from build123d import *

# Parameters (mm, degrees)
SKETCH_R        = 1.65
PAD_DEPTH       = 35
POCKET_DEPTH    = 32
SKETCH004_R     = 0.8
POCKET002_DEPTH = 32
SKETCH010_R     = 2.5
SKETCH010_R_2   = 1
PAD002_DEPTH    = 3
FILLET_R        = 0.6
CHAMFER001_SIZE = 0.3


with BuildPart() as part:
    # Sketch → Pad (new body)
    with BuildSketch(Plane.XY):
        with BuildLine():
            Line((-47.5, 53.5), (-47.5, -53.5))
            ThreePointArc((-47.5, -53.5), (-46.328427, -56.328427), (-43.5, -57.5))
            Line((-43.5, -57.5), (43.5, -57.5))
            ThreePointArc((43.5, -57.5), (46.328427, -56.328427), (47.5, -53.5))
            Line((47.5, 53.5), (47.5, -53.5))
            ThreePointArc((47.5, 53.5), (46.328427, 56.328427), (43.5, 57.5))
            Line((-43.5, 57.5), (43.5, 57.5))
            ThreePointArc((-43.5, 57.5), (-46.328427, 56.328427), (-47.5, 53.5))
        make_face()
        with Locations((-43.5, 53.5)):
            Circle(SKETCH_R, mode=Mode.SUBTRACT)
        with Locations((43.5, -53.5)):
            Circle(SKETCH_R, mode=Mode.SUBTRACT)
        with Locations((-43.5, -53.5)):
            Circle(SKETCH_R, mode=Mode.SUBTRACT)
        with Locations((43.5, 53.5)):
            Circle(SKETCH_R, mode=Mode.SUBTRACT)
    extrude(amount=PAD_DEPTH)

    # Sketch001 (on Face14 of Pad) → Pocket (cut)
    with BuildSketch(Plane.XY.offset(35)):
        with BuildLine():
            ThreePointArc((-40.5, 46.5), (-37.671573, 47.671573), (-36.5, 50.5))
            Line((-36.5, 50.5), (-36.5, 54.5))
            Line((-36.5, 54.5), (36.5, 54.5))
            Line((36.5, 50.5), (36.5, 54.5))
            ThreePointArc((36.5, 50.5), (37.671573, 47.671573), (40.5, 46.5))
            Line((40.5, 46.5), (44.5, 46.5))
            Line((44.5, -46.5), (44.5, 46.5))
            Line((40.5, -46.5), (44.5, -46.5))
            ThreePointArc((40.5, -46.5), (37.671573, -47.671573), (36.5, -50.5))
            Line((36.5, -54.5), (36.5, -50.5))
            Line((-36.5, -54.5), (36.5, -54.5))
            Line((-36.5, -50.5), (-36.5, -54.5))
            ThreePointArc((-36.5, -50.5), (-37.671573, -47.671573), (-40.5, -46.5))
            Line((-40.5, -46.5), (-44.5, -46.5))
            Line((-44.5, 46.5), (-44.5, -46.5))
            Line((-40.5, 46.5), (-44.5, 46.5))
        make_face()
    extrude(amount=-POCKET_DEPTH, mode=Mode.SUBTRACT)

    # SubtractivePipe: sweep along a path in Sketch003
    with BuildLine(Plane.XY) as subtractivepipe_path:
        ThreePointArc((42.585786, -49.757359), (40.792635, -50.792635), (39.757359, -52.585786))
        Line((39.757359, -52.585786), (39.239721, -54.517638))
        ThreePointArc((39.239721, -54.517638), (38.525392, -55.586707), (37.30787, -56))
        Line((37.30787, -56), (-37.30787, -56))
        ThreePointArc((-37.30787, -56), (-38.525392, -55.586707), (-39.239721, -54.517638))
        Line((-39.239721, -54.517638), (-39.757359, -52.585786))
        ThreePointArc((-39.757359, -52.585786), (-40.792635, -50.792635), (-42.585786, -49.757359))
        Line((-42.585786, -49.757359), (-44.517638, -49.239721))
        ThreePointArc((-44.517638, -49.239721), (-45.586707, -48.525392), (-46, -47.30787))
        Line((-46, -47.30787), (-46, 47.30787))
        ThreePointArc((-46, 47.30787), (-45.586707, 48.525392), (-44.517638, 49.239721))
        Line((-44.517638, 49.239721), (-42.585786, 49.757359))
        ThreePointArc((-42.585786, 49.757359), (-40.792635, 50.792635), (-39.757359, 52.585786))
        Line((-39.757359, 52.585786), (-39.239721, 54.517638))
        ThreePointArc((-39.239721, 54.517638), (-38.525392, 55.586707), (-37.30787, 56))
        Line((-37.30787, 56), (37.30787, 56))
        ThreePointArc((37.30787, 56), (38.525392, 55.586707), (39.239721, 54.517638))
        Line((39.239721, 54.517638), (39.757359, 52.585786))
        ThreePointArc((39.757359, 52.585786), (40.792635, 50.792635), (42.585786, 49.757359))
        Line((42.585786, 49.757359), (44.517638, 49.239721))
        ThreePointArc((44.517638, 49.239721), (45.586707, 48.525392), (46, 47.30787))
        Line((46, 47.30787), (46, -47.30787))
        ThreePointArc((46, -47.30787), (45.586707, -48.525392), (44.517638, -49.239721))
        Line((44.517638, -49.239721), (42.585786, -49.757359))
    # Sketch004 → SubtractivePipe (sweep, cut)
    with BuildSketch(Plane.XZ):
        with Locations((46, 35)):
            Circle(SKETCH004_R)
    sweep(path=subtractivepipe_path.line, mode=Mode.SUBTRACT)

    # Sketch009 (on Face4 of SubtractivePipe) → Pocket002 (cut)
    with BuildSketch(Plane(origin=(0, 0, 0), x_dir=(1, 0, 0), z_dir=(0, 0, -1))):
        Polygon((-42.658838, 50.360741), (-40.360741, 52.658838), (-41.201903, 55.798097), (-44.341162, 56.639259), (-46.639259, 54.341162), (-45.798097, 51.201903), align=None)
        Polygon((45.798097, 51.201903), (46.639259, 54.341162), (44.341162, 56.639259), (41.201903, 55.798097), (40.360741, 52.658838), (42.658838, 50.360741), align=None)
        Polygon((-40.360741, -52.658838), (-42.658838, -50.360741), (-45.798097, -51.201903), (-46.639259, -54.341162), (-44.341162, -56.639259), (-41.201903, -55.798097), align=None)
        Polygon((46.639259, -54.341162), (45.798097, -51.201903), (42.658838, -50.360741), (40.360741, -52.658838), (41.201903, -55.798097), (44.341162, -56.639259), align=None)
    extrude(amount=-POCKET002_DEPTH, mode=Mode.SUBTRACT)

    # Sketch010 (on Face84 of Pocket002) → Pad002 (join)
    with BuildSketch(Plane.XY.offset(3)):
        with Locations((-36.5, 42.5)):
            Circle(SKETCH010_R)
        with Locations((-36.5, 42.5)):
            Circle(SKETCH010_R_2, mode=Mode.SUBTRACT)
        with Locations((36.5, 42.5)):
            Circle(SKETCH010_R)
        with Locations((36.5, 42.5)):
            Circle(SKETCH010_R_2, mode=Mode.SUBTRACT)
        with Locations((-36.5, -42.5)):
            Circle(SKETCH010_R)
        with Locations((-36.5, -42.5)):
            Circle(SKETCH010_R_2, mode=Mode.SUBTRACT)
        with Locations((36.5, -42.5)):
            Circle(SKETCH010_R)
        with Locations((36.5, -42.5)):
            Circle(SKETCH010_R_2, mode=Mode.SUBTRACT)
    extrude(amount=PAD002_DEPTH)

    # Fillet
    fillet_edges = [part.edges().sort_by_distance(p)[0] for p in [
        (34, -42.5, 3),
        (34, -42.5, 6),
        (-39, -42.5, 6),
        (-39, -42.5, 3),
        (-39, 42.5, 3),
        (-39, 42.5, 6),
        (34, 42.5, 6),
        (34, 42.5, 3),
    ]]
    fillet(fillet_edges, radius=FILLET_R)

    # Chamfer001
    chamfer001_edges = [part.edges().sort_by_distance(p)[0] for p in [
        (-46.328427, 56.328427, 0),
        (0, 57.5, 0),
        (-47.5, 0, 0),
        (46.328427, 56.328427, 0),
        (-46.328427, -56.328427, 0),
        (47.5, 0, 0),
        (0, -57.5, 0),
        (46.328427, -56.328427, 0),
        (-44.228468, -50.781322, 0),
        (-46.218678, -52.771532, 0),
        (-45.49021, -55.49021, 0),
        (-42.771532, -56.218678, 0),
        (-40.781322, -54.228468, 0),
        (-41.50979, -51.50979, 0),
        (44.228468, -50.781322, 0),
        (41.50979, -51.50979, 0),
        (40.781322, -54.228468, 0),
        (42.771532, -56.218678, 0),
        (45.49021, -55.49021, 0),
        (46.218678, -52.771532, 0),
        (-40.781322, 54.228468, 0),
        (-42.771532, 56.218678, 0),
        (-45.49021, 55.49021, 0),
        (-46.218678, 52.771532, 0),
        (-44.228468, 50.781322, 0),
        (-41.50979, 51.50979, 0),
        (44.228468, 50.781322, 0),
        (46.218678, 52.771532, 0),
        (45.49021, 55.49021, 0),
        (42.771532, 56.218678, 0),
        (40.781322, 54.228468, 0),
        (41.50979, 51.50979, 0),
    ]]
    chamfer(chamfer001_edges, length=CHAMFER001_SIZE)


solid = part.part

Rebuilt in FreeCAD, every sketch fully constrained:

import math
import FreeCAD as App
import Part
import Sketcher

V = App.Vector
Q = App.Units.Quantity


def edges_at(feature, points):
    """Names of the edges that pass closest to the given points."""
    edges = feature.Shape.Edges
    near = lambda p: min(range(len(edges)), key=lambda i: edges[i].distToShape(Part.Vertex(*p))[0])
    return sorted({f"Edge{near(p) + 1}" for p in points})

doc = App.newDocument("Part")
body = doc.addObject("PartDesign::Body", "Body")

# Sketch on XY plane
sketch1 = body.newObject("Sketcher::SketchObject", "Sketch")
sketch1.AttachmentSupport = (doc.getObject("XY_Plane"), [""])
sketch1.MapMode = "FlatFace"
sketch1.addGeometry(Part.LineSegment(V(-47.5, 53.5, 0), V(-47.5, -53.5, 0)), False)
sketch1.addGeometry(Part.ArcOfCircle(Part.Circle(V(-43.5, -53.5, 0), V(0, 0, 1), 4), math.radians(-180), math.radians(-90)), False)
sketch1.addGeometry(Part.LineSegment(V(-43.5, -57.5, 0), V(43.5, -57.5, 0)), False)
sketch1.addGeometry(Part.ArcOfCircle(Part.Circle(V(43.5, -53.5, 0), V(0, 0, 1), 4), math.radians(-90), math.radians(0)), False)
sketch1.addGeometry(Part.LineSegment(V(47.5, -53.5, 0), V(47.5, 53.5, 0)), False)
sketch1.addGeometry(Part.ArcOfCircle(Part.Circle(V(43.5, 53.5, 0), V(0, 0, 1), 4), math.radians(0), math.radians(90)), False)
sketch1.addGeometry(Part.LineSegment(V(43.5, 57.5, 0), V(-43.5, 57.5, 0)), False)
sketch1.addGeometry(Part.ArcOfCircle(Part.Circle(V(-43.5, 53.5, 0), V(0, 0, 1), 4), math.radians(90), math.radians(180)), False)
sketch1.addGeometry(Part.Circle(V(-43.5, -53.5, 0), V(0, 0, 1), 1.6), False)
sketch1.addGeometry(Part.Circle(V(43.5, -53.5, 0), V(0, 0, 1), 1.6), False)
sketch1.addGeometry(Part.Circle(V(-43.5, 53.5, 0), V(0, 0, 1), 1.6), False)
sketch1.addGeometry(Part.Circle(V(43.5, 53.5, 0), V(0, 0, 1), 1.6), False)
sketch1.addConstraint(Sketcher.Constraint("Tangent", 0, 2, 1, 1))
sketch1.addConstraint(Sketcher.Constraint("Tangent", 1, 2, 2, 1))
sketch1.addConstraint(Sketcher.Constraint("Tangent", 2, 2, 3, 1))
sketch1.addConstraint(Sketcher.Constraint("Tangent", 3, 2, 4, 1))
sketch1.addConstraint(Sketcher.Constraint("Tangent", 4, 2, 5, 1))
sketch1.addConstraint(Sketcher.Constraint("Tangent", 5, 2, 6, 1))
sketch1.addConstraint(Sketcher.Constraint("Tangent", 6, 2, 7, 1))
sketch1.addConstraint(Sketcher.Constraint("Tangent", 7, 2, 0, 1))
sketch1.addConstraint(Sketcher.Constraint("Vertical", 0))
sketch1.addConstraint(Sketcher.Constraint("Horizontal", 2))
sketch1.addConstraint(Sketcher.Constraint("Vertical", 4))
sketch1.addConstraint(Sketcher.Constraint("Horizontal", 6))
sketch1.addConstraint(Sketcher.Constraint("Coincident", 8, 3, 1, 3))
sketch1.addConstraint(Sketcher.Constraint("Coincident", 9, 3, 3, 3))
sketch1.addConstraint(Sketcher.Constraint("Coincident", 10, 3, 7, 3))
sketch1.addConstraint(Sketcher.Constraint("Coincident", 11, 3, 5, 3))
sketch1.addConstraint(Sketcher.Constraint("Equal", 1, 3))
sketch1.addConstraint(Sketcher.Constraint("Equal", 3, 5))
sketch1.addConstraint(Sketcher.Constraint("Equal", 5, 7))
sketch1.addConstraint(Sketcher.Constraint("Equal", 8, 9))
sketch1.addConstraint(Sketcher.Constraint("Equal", 9, 10))
sketch1.addConstraint(Sketcher.Constraint("Equal", 10, 11))
sketch1.addConstraint(Sketcher.Constraint("Symmetric", 1, 3, 5, 3, -1, 1))
sketch1.addConstraint(Sketcher.Constraint("Radius", 1, Q("4 mm")))
sketch1.addConstraint(Sketcher.Constraint("Diameter", 8, Q("3.3 mm")))
sketch1.addConstraint(Sketcher.Constraint("DistanceX", 2, 1, 2, 2, Q("87 mm")))
sketch1.addConstraint(Sketcher.Constraint("DistanceY", 0, 2, 0, 1, Q("107 mm")))
pad1 = body.newObject("PartDesign::Pad", "Pad")
pad1.Profile = sketch1
pad1.Length = 35

# Sketch on XY plane
sketch2 = body.newObject("Sketcher::SketchObject", "Sketch001")
sketch2.AttachmentSupport = (doc.getObject("XY_Plane"), [""])
sketch2.MapMode = "FlatFace"
sketch2.AttachmentOffset = App.Placement(V(0, 0, 35), App.Rotation())
sketch2.addGeometry(Part.ArcOfCircle(Part.Circle(V(-40.5, 50.5, 0), V(0, 0, 1), 4), math.radians(-90), math.radians(0)), False)
sketch2.addGeometry(Part.LineSegment(V(-40.5, 46.5, 0), V(-44.5, 46.5, 0)), False)
sketch2.addGeometry(Part.LineSegment(V(-44.5, 46.5, 0), V(-44.5, -46.5, 0)), False)
sketch2.addGeometry(Part.LineSegment(V(-44.5, -46.5, 0), V(-40.5, -46.5, 0)), False)
sketch2.addGeometry(Part.ArcOfCircle(Part.Circle(V(-40.5, -50.5, 0), V(0, 0, 1), 4), math.radians(0), math.radians(90)), False)
sketch2.addGeometry(Part.LineSegment(V(-36.5, -50.5, 0), V(-36.5, -54.5, 0)), False)
sketch2.addGeometry(Part.LineSegment(V(-36.5, -54.5, 0), V(36.5, -54.5, 0)), False)
sketch2.addGeometry(Part.LineSegment(V(36.5, -54.5, 0), V(36.5, -50.5, 0)), False)
sketch2.addGeometry(Part.ArcOfCircle(Part.Circle(V(40.5, -50.5, 0), V(0, 0, 1), 4), math.radians(90), math.radians(180)), False)
sketch2.addGeometry(Part.LineSegment(V(40.5, -46.5, 0), V(44.5, -46.5, 0)), False)
sketch2.addGeometry(Part.LineSegment(V(44.5, -46.5, 0), V(44.5, 46.5, 0)), False)
sketch2.addGeometry(Part.LineSegment(V(44.5, 46.5, 0), V(40.5, 46.5, 0)), False)
sketch2.addGeometry(Part.ArcOfCircle(Part.Circle(V(40.5, 50.5, 0), V(0, 0, 1), 4), math.radians(-180), math.radians(-90)), False)
sketch2.addGeometry(Part.LineSegment(V(36.5, 50.5, 0), V(36.5, 54.5, 0)), False)
sketch2.addGeometry(Part.LineSegment(V(36.5, 54.5, 0), V(-36.5, 54.5, 0)), False)
sketch2.addGeometry(Part.LineSegment(V(-36.5, 54.5, 0), V(-36.5, 50.5, 0)), False)
sketch2.addConstraint(Sketcher.Constraint("Tangent", 0, 1, 1, 1))
sketch2.addConstraint(Sketcher.Constraint("Coincident", 1, 2, 2, 1))
sketch2.addConstraint(Sketcher.Constraint("Coincident", 2, 2, 3, 1))
sketch2.addConstraint(Sketcher.Constraint("Tangent", 3, 2, 4, 2))
sketch2.addConstraint(Sketcher.Constraint("Tangent", 4, 1, 5, 1))
sketch2.addConstraint(Sketcher.Constraint("Coincident", 5, 2, 6, 1))
sketch2.addConstraint(Sketcher.Constraint("Coincident", 6, 2, 7, 1))
sketch2.addConstraint(Sketcher.Constraint("Tangent", 7, 2, 8, 2))
sketch2.addConstraint(Sketcher.Constraint("Tangent", 8, 1, 9, 1))
sketch2.addConstraint(Sketcher.Constraint("Coincident", 9, 2, 10, 1))
sketch2.addConstraint(Sketcher.Constraint("Coincident", 10, 2, 11, 1))
sketch2.addConstraint(Sketcher.Constraint("Tangent", 11, 2, 12, 2))
sketch2.addConstraint(Sketcher.Constraint("Tangent", 12, 1, 13, 1))
sketch2.addConstraint(Sketcher.Constraint("Coincident", 13, 2, 14, 1))
sketch2.addConstraint(Sketcher.Constraint("Coincident", 14, 2, 15, 1))
sketch2.addConstraint(Sketcher.Constraint("Tangent", 15, 2, 0, 2))
sketch2.addConstraint(Sketcher.Constraint("Horizontal", 1))
sketch2.addConstraint(Sketcher.Constraint("Vertical", 2))
sketch2.addConstraint(Sketcher.Constraint("Horizontal", 3))
sketch2.addConstraint(Sketcher.Constraint("Vertical", 5))
sketch2.addConstraint(Sketcher.Constraint("Horizontal", 6))
sketch2.addConstraint(Sketcher.Constraint("Vertical", 7))
sketch2.addConstraint(Sketcher.Constraint("Horizontal", 9))
sketch2.addConstraint(Sketcher.Constraint("Vertical", 10))
sketch2.addConstraint(Sketcher.Constraint("Horizontal", 11))
sketch2.addConstraint(Sketcher.Constraint("Vertical", 13))
sketch2.addConstraint(Sketcher.Constraint("Horizontal", 14))
sketch2.addConstraint(Sketcher.Constraint("Vertical", 15))
sketch2.addConstraint(Sketcher.Constraint("Equal", 0, 4))
sketch2.addConstraint(Sketcher.Constraint("Equal", 4, 8))
sketch2.addConstraint(Sketcher.Constraint("Equal", 8, 12))
sketch2.addConstraint(Sketcher.Constraint("Symmetric", 0, 3, 8, 3, -1, 1))
sketch2.addConstraint(Sketcher.Constraint("Symmetric", 4, 3, 12, 3, -1, 1))
sketch2.addConstraint(Sketcher.Constraint("Symmetric", 4, 3, 8, 3, -2))
sketch2.addConstraint(Sketcher.Constraint("Equal", 3, 9))
sketch2.addConstraint(Sketcher.Constraint("Equal", 11, 5))
sketch2.addConstraint(Sketcher.Constraint("Equal", 7, 13))
sketch2.addConstraint(Sketcher.Constraint("Radius", 0, Q("4 mm")))
sketch2.addConstraint(Sketcher.Constraint("DistanceX", 1, 2, 1, 1, Q("4 mm")))
sketch2.addConstraint(Sketcher.Constraint("DistanceX", 6, 1, 6, 2, Q("73 mm")))
sketch2.addConstraint(Sketcher.Constraint("DistanceY", 2, 2, 2, 1, Q("93 mm")))
pocket1 = body.newObject("PartDesign::Pocket", "Pocket")
pocket1.Profile = sketch2
pocket1.Length = 32

# Sketch on XZ plane
sketch3 = body.newObject("Sketcher::SketchObject", "Sketch002")
sketch3.AttachmentSupport = (doc.getObject("XZ_Plane"), [""])
sketch3.MapMode = "FlatFace"
sketch3.addGeometry(Part.Circle(V(46, 35, 0), V(0, 0, 1), 0.8), False)
sketch3.addConstraint(Sketcher.Constraint("Diameter", 0, Q("1.6 mm")))
sketch3.addConstraint(Sketcher.Constraint("DistanceX", -1, 1, 0, 3, Q("46 mm")))
sketch3.addConstraint(Sketcher.Constraint("DistanceY", -1, 1, 0, 3, Q("35 mm")))

# Sketch on XY plane
sketch4 = body.newObject("Sketcher::SketchObject", "Sketch003")
sketch4.AttachmentSupport = (doc.getObject("XY_Plane"), [""])
sketch4.MapMode = "FlatFace"
sketch4.addGeometry(Part.ArcOfCircle(Part.Circle(V(43.6, -53.6, 0), V(0, 0, 1), 4), math.radians(105), math.radians(165)), False)
sketch4.addGeometry(Part.LineSegment(V(39.8, -52.6, 0), V(39.2, -54.5, 0)), False)
sketch4.addGeometry(Part.ArcOfCircle(Part.Circle(V(37.3, -54, 0), V(0, 0, 1), 2), math.radians(-90), math.radians(-15)), False)
sketch4.addGeometry(Part.LineSegment(V(37.3, -56, 0), V(-37.3, -56, 0)), False)
sketch4.addGeometry(Part.ArcOfCircle(Part.Circle(V(-37.3, -54, 0), V(0, 0, 1), 2), math.radians(-165), math.radians(-90)), False)
sketch4.addGeometry(Part.LineSegment(V(-39.2, -54.5, 0), V(-39.8, -52.6, 0)), False)
sketch4.addGeometry(Part.ArcOfCircle(Part.Circle(V(-43.6, -53.6, 0), V(0, 0, 1), 4), math.radians(15), math.radians(75)), False)
sketch4.addGeometry(Part.LineSegment(V(-42.6, -49.8, 0), V(-44.5, -49.2, 0)), False)
sketch4.addGeometry(Part.ArcOfCircle(Part.Circle(V(-44, -47.3, 0), V(0, 0, 1), 2), math.radians(-180), math.radians(-105)), False)
sketch4.addGeometry(Part.LineSegment(V(-46, -47.3, 0), V(-46, 47.3, 0)), False)
sketch4.addGeometry(Part.ArcOfCircle(Part.Circle(V(-44, 47.3, 0), V(0, 0, 1), 2), math.radians(105), math.radians(180)), False)
sketch4.addGeometry(Part.LineSegment(V(-44.5, 49.2, 0), V(-42.6, 49.8, 0)), False)
sketch4.addGeometry(Part.ArcOfCircle(Part.Circle(V(-43.6, 53.6, 0), V(0, 0, 1), 4), math.radians(-75), math.radians(-15)), False)
sketch4.addGeometry(Part.LineSegment(V(-39.8, 52.6, 0), V(-39.2, 54.5, 0)), False)
sketch4.addGeometry(Part.ArcOfCircle(Part.Circle(V(-37.3, 54, 0), V(0, 0, 1), 2), math.radians(90), math.radians(165)), False)
sketch4.addGeometry(Part.LineSegment(V(-37.3, 56, 0), V(37.3, 56, 0)), False)
sketch4.addGeometry(Part.ArcOfCircle(Part.Circle(V(37.3, 54, 0), V(0, 0, 1), 2), math.radians(15), math.radians(90)), False)
sketch4.addGeometry(Part.LineSegment(V(39.2, 54.5, 0), V(39.8, 52.6, 0)), False)
sketch4.addGeometry(Part.ArcOfCircle(Part.Circle(V(43.6, 53.6, 0), V(0, 0, 1), 4), math.radians(-165), math.radians(-105)), False)
sketch4.addGeometry(Part.LineSegment(V(42.6, 49.8, 0), V(44.5, 49.2, 0)), False)
sketch4.addGeometry(Part.ArcOfCircle(Part.Circle(V(44, 47.3, 0), V(0, 0, 1), 2), math.radians(0), math.radians(75)), False)
sketch4.addGeometry(Part.LineSegment(V(46, 47.3, 0), V(46, -47.3, 0)), False)
sketch4.addGeometry(Part.ArcOfCircle(Part.Circle(V(44, -47.3, 0), V(0, 0, 1), 2), math.radians(-75), math.radians(0)), False)
sketch4.addGeometry(Part.LineSegment(V(44.5, -49.2, 0), V(42.6, -49.8, 0)), False)
sketch4.addConstraint(Sketcher.Constraint("Tangent", 0, 2, 1, 1))
sketch4.addConstraint(Sketcher.Constraint("Tangent", 1, 2, 2, 2))
sketch4.addConstraint(Sketcher.Constraint("Tangent", 2, 1, 3, 1))
sketch4.addConstraint(Sketcher.Constraint("Tangent", 3, 2, 4, 2))
sketch4.addConstraint(Sketcher.Constraint("Tangent", 4, 1, 5, 1))
sketch4.addConstraint(Sketcher.Constraint("Tangent", 5, 2, 6, 1))
sketch4.addConstraint(Sketcher.Constraint("Tangent", 6, 2, 7, 1))
sketch4.addConstraint(Sketcher.Constraint("Tangent", 7, 2, 8, 2))
sketch4.addConstraint(Sketcher.Constraint("Tangent", 8, 1, 9, 1))
sketch4.addConstraint(Sketcher.Constraint("Tangent", 9, 2, 10, 2))
sketch4.addConstraint(Sketcher.Constraint("Tangent", 10, 1, 11, 1))
sketch4.addConstraint(Sketcher.Constraint("Tangent", 11, 2, 12, 1))
sketch4.addConstraint(Sketcher.Constraint("Tangent", 12, 2, 13, 1))
sketch4.addConstraint(Sketcher.Constraint("Tangent", 13, 2, 14, 2))
sketch4.addConstraint(Sketcher.Constraint("Tangent", 14, 1, 15, 1))
sketch4.addConstraint(Sketcher.Constraint("Tangent", 15, 2, 16, 2))
sketch4.addConstraint(Sketcher.Constraint("Tangent", 16, 1, 17, 1))
sketch4.addConstraint(Sketcher.Constraint("Tangent", 17, 2, 18, 1))
sketch4.addConstraint(Sketcher.Constraint("Tangent", 18, 2, 19, 1))
sketch4.addConstraint(Sketcher.Constraint("Tangent", 19, 2, 20, 2))
sketch4.addConstraint(Sketcher.Constraint("Tangent", 20, 1, 21, 1))
sketch4.addConstraint(Sketcher.Constraint("Tangent", 21, 2, 22, 2))
sketch4.addConstraint(Sketcher.Constraint("Tangent", 22, 1, 23, 1))
sketch4.addConstraint(Sketcher.Constraint("Tangent", 23, 2, 0, 1))
sketch4.addConstraint(Sketcher.Constraint("Horizontal", 3))
sketch4.addConstraint(Sketcher.Constraint("Vertical", 9))
sketch4.addConstraint(Sketcher.Constraint("Horizontal", 15))
sketch4.addConstraint(Sketcher.Constraint("Vertical", 21))
sketch4.addConstraint(Sketcher.Constraint("Equal", 2, 4))
sketch4.addConstraint(Sketcher.Constraint("Equal", 0, 6))
sketch4.addConstraint(Sketcher.Constraint("Equal", 4, 8))
sketch4.addConstraint(Sketcher.Constraint("Equal", 8, 10))
sketch4.addConstraint(Sketcher.Constraint("Equal", 6, 12))
sketch4.addConstraint(Sketcher.Constraint("Equal", 10, 14))
sketch4.addConstraint(Sketcher.Constraint("Equal", 14, 16))
sketch4.addConstraint(Sketcher.Constraint("Equal", 12, 18))
sketch4.addConstraint(Sketcher.Constraint("Equal", 16, 20))
sketch4.addConstraint(Sketcher.Constraint("Equal", 20, 22))
sketch4.addConstraint(Sketcher.Constraint("Symmetric", 0, 3, 12, 3, -1, 1))
sketch4.addConstraint(Sketcher.Constraint("Symmetric", 2, 3, 14, 3, -1, 1))
sketch4.addConstraint(Sketcher.Constraint("Symmetric", 6, 3, 18, 3, -1, 1))
sketch4.addConstraint(Sketcher.Constraint("Symmetric", 8, 3, 20, 3, -1, 1))
sketch4.addConstraint(Sketcher.Constraint("Symmetric", 0, 3, 6, 3, -2))
sketch4.addConstraint(Sketcher.Constraint("Perpendicular", 1, 7))
sketch4.addConstraint(Sketcher.Constraint("Perpendicular", 5, 11))
sketch4.addConstraint(Sketcher.Constraint("Perpendicular", 11, 17))
sketch4.addConstraint(Sketcher.Constraint("Perpendicular", 17, 23))
sketch4.addConstraint(Sketcher.Constraint("Horizontal", 10, 3, 20, 3))
sketch4.addConstraint(Sketcher.Constraint("Equal", 5, 7))
sketch4.addConstraint(Sketcher.Constraint("Radius", 0, Q("3.999999 mm")))
sketch4.addConstraint(Sketcher.Constraint("Radius", 2, Q("1.999999 mm")))
sketch4.addConstraint(Sketcher.Constraint("Angle", 1, Q("-104.999995 deg")))
sketch4.addConstraint(Sketcher.Constraint("Distance", 1, Q("2 mm")))
sketch4.addConstraint(Sketcher.Constraint("DistanceY", 2, 3, -1, 1, Q("54.000001 mm")))
sketch4.addConstraint(Sketcher.Constraint("DistanceX", 8, 3, -1, 1, Q("44.000001 mm")))
doc.recompute()

subtractivepipe = body.newObject("PartDesign::SubtractivePipe", "SubtractivePipe")
subtractivepipe.Profile = sketch3
subtractivepipe.Spine = (sketch4, ["Edge1", "Edge2", "Edge3", "Edge4", "Edge5", "Edge6", "Edge7", "Edge8", "Edge9", "Edge10", "Edge11", "Edge12", "Edge13", "Edge14", "Edge15", "Edge16", "Edge17", "Edge18", "Edge19", "Edge20", "Edge21", "Edge22", "Edge23", "Edge24"])

# Sketch on XY plane
sketch5 = body.newObject("Sketcher::SketchObject", "Sketch004")
sketch5.AttachmentSupport = (doc.getObject("XY_Plane"), [""])
sketch5.MapMode = "FlatFace"
sketch5.addGeometry(Part.LineSegment(V(-42.7, -50.4, 0), V(-40.4, -52.7, 0)), False)
sketch5.addGeometry(Part.LineSegment(V(-40.4, -52.7, 0), V(-41.2, -55.8, 0)), False)
sketch5.addGeometry(Part.LineSegment(V(-41.2, -55.8, 0), V(-44.3, -56.6, 0)), False)
sketch5.addGeometry(Part.LineSegment(V(-44.3, -56.6, 0), V(-46.6, -54.3, 0)), False)
sketch5.addGeometry(Part.LineSegment(V(-46.6, -54.3, 0), V(-45.8, -51.2, 0)), False)
sketch5.addGeometry(Part.LineSegment(V(-45.8, -51.2, 0), V(-42.7, -50.4, 0)), False)
sketch5.addGeometry(Part.LineSegment(V(45.8, -51.2, 0), V(46.6, -54.3, 0)), False)
sketch5.addGeometry(Part.LineSegment(V(46.6, -54.3, 0), V(44.3, -56.6, 0)), False)
sketch5.addGeometry(Part.LineSegment(V(44.3, -56.6, 0), V(41.2, -55.8, 0)), False)
sketch5.addGeometry(Part.LineSegment(V(41.2, -55.8, 0), V(40.4, -52.7, 0)), False)
sketch5.addGeometry(Part.LineSegment(V(40.4, -52.7, 0), V(42.7, -50.4, 0)), False)
sketch5.addGeometry(Part.LineSegment(V(42.7, -50.4, 0), V(45.8, -51.2, 0)), False)
sketch5.addGeometry(Part.LineSegment(V(-40.4, 52.7, 0), V(-42.7, 50.4, 0)), False)
sketch5.addGeometry(Part.LineSegment(V(-42.7, 50.4, 0), V(-45.8, 51.2, 0)), False)
sketch5.addGeometry(Part.LineSegment(V(-45.8, 51.2, 0), V(-46.6, 54.3, 0)), False)
sketch5.addGeometry(Part.LineSegment(V(-46.6, 54.3, 0), V(-44.3, 56.6, 0)), False)
sketch5.addGeometry(Part.LineSegment(V(-44.3, 56.6, 0), V(-41.2, 55.8, 0)), False)
sketch5.addGeometry(Part.LineSegment(V(-41.2, 55.8, 0), V(-40.4, 52.7, 0)), False)
sketch5.addGeometry(Part.LineSegment(V(46.6, 54.3, 0), V(45.8, 51.2, 0)), False)
sketch5.addGeometry(Part.LineSegment(V(45.8, 51.2, 0), V(42.7, 50.4, 0)), False)
sketch5.addGeometry(Part.LineSegment(V(42.7, 50.4, 0), V(40.4, 52.7, 0)), False)
sketch5.addGeometry(Part.LineSegment(V(40.4, 52.7, 0), V(41.2, 55.8, 0)), False)
sketch5.addGeometry(Part.LineSegment(V(41.2, 55.8, 0), V(44.3, 56.6, 0)), False)
sketch5.addGeometry(Part.LineSegment(V(44.3, 56.6, 0), V(46.6, 54.3, 0)), False)
sketch5.addConstraint(Sketcher.Constraint("Coincident", 0, 2, 1, 1))
sketch5.addConstraint(Sketcher.Constraint("Coincident", 1, 2, 2, 1))
sketch5.addConstraint(Sketcher.Constraint("Coincident", 2, 2, 3, 1))
sketch5.addConstraint(Sketcher.Constraint("Coincident", 3, 2, 4, 1))
sketch5.addConstraint(Sketcher.Constraint("Coincident", 4, 2, 5, 1))
sketch5.addConstraint(Sketcher.Constraint("Coincident", 5, 2, 0, 1))
sketch5.addConstraint(Sketcher.Constraint("Coincident", 6, 2, 7, 1))
sketch5.addConstraint(Sketcher.Constraint("Coincident", 7, 2, 8, 1))
sketch5.addConstraint(Sketcher.Constraint("Coincident", 8, 2, 9, 1))
sketch5.addConstraint(Sketcher.Constraint("Coincident", 9, 2, 10, 1))
sketch5.addConstraint(Sketcher.Constraint("Coincident", 10, 2, 11, 1))
sketch5.addConstraint(Sketcher.Constraint("Coincident", 11, 2, 6, 1))
sketch5.addConstraint(Sketcher.Constraint("Coincident", 12, 2, 13, 1))
sketch5.addConstraint(Sketcher.Constraint("Coincident", 13, 2, 14, 1))
sketch5.addConstraint(Sketcher.Constraint("Coincident", 14, 2, 15, 1))
sketch5.addConstraint(Sketcher.Constraint("Coincident", 15, 2, 16, 1))
sketch5.addConstraint(Sketcher.Constraint("Coincident", 16, 2, 17, 1))
sketch5.addConstraint(Sketcher.Constraint("Coincident", 17, 2, 12, 1))
sketch5.addConstraint(Sketcher.Constraint("Coincident", 18, 2, 19, 1))
sketch5.addConstraint(Sketcher.Constraint("Coincident", 19, 2, 20, 1))
sketch5.addConstraint(Sketcher.Constraint("Coincident", 20, 2, 21, 1))
sketch5.addConstraint(Sketcher.Constraint("Coincident", 21, 2, 22, 1))
sketch5.addConstraint(Sketcher.Constraint("Coincident", 22, 2, 23, 1))
sketch5.addConstraint(Sketcher.Constraint("Coincident", 23, 2, 18, 1))
sketch5.addConstraint(Sketcher.Constraint("Symmetric", 10, 2, 12, 2, -1, 1))
sketch5.addConstraint(Sketcher.Constraint("Symmetric", 11, 2, 13, 2, -1, 1))
sketch5.addConstraint(Sketcher.Constraint("Symmetric", 6, 2, 14, 2, -1, 1))
sketch5.addConstraint(Sketcher.Constraint("Symmetric", 7, 2, 15, 2, -1, 1))
sketch5.addConstraint(Sketcher.Constraint("Symmetric", 8, 2, 16, 2, -1, 1))
sketch5.addConstraint(Sketcher.Constraint("Symmetric", 9, 2, 17, 2, -1, 1))
sketch5.addConstraint(Sketcher.Constraint("Symmetric", 4, 2, 18, 2, -1, 1))
sketch5.addConstraint(Sketcher.Constraint("Symmetric", 5, 2, 19, 2, -1, 1))
sketch5.addConstraint(Sketcher.Constraint("Symmetric", 0, 2, 20, 2, -1, 1))
sketch5.addConstraint(Sketcher.Constraint("Symmetric", 1, 2, 21, 2, -1, 1))
sketch5.addConstraint(Sketcher.Constraint("Symmetric", 2, 2, 22, 2, -1, 1))
sketch5.addConstraint(Sketcher.Constraint("Symmetric", 3, 2, 23, 2, -1, 1))
sketch5.addConstraint(Sketcher.Constraint("Symmetric", 3, 2, 6, 2, -2))
sketch5.addConstraint(Sketcher.Constraint("Symmetric", 2, 2, 7, 2, -2))
sketch5.addConstraint(Sketcher.Constraint("Symmetric", 1, 2, 8, 2, -2))
sketch5.addConstraint(Sketcher.Constraint("Symmetric", 0, 2, 9, 2, -2))
sketch5.addConstraint(Sketcher.Constraint("Symmetric", 5, 2, 10, 2, -2))
sketch5.addConstraint(Sketcher.Constraint("Symmetric", 4, 2, 11, 2, -2))
sketch5.addConstraint(Sketcher.Constraint("Parallel", 0, 3))
sketch5.addConstraint(Sketcher.Constraint("Parallel", 1, 4))
sketch5.addConstraint(Sketcher.Constraint("Parallel", 2, 5))
sketch5.addConstraint(Sketcher.Constraint("Perpendicular", 5, 6))
sketch5.addConstraint(Sketcher.Constraint("Perpendicular", 3, 7))
sketch5.addConstraint(Sketcher.Constraint("Equal", 0, 1))
sketch5.addConstraint(Sketcher.Constraint("Equal", 1, 2))
sketch5.addConstraint(Sketcher.Constraint("Equal", 2, 3))
sketch5.addConstraint(Sketcher.Constraint("Angle", 1, Q("-105.000001 deg")))
sketch5.addConstraint(Sketcher.Constraint("DistanceX", 0, 2, 6, 2, Q("87 mm")))
sketch5.addConstraint(Sketcher.Constraint("DistanceY", 0, 2, 14, 2, Q("107 mm")))
sketch5.addConstraint(Sketcher.Constraint("Distance", 0, Q("3.25 mm")))
pocket2 = body.newObject("PartDesign::Pocket", "Pocket001")
pocket2.Profile = sketch5
pocket2.Length = 32
pocket2.Reversed = True

# Sketch on XY plane
sketch6 = body.newObject("Sketcher::SketchObject", "Sketch005")
sketch6.AttachmentSupport = (doc.getObject("XY_Plane"), [""])
sketch6.MapMode = "FlatFace"
sketch6.AttachmentOffset = App.Placement(V(0, 0, 3), App.Rotation())
sketch6.addGeometry(Part.Circle(V(-36.5, 42.5, 0), V(0, 0, 1), 2.5), False)
sketch6.addGeometry(Part.Circle(V(-36.5, 42.5, 0), V(0, 0, 1), 1), False)
sketch6.addGeometry(Part.Circle(V(36.5, 42.5, 0), V(0, 0, 1), 2.5), False)
sketch6.addGeometry(Part.Circle(V(36.5, 42.5, 0), V(0, 0, 1), 1), False)
sketch6.addGeometry(Part.Circle(V(-36.5, -42.5, 0), V(0, 0, 1), 2.5), False)
sketch6.addGeometry(Part.Circle(V(-36.5, -42.5, 0), V(0, 0, 1), 1), False)
sketch6.addGeometry(Part.Circle(V(36.5, -42.5, 0), V(0, 0, 1), 2.5), False)
sketch6.addGeometry(Part.Circle(V(36.5, -42.5, 0), V(0, 0, 1), 1), False)
sketch6.addConstraint(Sketcher.Constraint("Coincident", 1, 3, 0, 3))
sketch6.addConstraint(Sketcher.Constraint("Coincident", 3, 3, 2, 3))
sketch6.addConstraint(Sketcher.Constraint("Coincident", 5, 3, 4, 3))
sketch6.addConstraint(Sketcher.Constraint("Coincident", 7, 3, 6, 3))
sketch6.addConstraint(Sketcher.Constraint("Equal", 0, 2))
sketch6.addConstraint(Sketcher.Constraint("Equal", 1, 3))
sketch6.addConstraint(Sketcher.Constraint("Equal", 2, 4))
sketch6.addConstraint(Sketcher.Constraint("Equal", 3, 5))
sketch6.addConstraint(Sketcher.Constraint("Equal", 4, 6))
sketch6.addConstraint(Sketcher.Constraint("Equal", 5, 7))
sketch6.addConstraint(Sketcher.Constraint("Symmetric", 2, 3, 4, 3, -1, 1))
sketch6.addConstraint(Sketcher.Constraint("Symmetric", 0, 3, 6, 3, -1, 1))
sketch6.addConstraint(Sketcher.Constraint("Symmetric", 0, 3, 2, 3, -2))
sketch6.addConstraint(Sketcher.Constraint("Diameter", 0, Q("5 mm")))
sketch6.addConstraint(Sketcher.Constraint("Diameter", 1, Q("2 mm")))
sketch6.addConstraint(Sketcher.Constraint("DistanceX", 0, 3, 2, 3, Q("73 mm")))
sketch6.addConstraint(Sketcher.Constraint("DistanceY", 4, 3, 0, 3, Q("85 mm")))
pad2 = body.newObject("PartDesign::Pad", "Pad001")
pad2.Profile = sketch6
pad2.Length = 3
doc.recompute()

fillet = body.newObject("PartDesign::Fillet", "Fillet")
fillet.Base = (pad2, edges_at(pad2, [
    (34, -42.5, 3),
    (34, -42.5, 6),
    (-39, -42.5, 6),
    (-39, -42.5, 3),
    (-39, 42.5, 3),
    (-39, 42.5, 6),
    (34, 42.5, 6),
    (34, 42.5, 3),
]))
fillet.Radius = 0.6
doc.recompute()

chamfer = body.newObject("PartDesign::Chamfer", "Chamfer")
chamfer.Base = (fillet, edges_at(fillet, [
    (-46.328, 56.328, 0),
    (0, 57.5, 0),
    (-47.5, 0, 0),
    (46.328, 56.328, 0),
    (-46.328, -56.328, 0),
    (47.5, 0, 0),
    (0, -57.5, 0),
    (46.328, -56.328, 0),
    (-44.228, -50.781, 0),
    (-46.219, -52.772, 0),
    (-45.49, -55.49, 0),
    (-42.772, -56.219, 0),
    (-40.781, -54.228, 0),
    (-41.51, -51.51, 0),
    (44.228, -50.781, 0),
    (41.51, -51.51, 0),
    (40.781, -54.228, 0),
    (42.772, -56.219, 0),
    (45.49, -55.49, 0),
    (46.219, -52.772, 0),
    (-40.781, 54.228, 0),
    (-42.772, 56.219, 0),
    (-45.49, 55.49, 0),
    (-46.219, 52.772, 0),
    (-44.228, 50.781, 0),
    (-41.51, 51.51, 0),
    (44.228, 50.781, 0),
    (46.219, 52.772, 0),
    (45.49, 55.49, 0),
    (42.772, 56.219, 0),
    (40.781, 54.228, 0),
    (41.51, 51.51, 0),
]))
chamfer.Size = 0.3

doc.recompute()
